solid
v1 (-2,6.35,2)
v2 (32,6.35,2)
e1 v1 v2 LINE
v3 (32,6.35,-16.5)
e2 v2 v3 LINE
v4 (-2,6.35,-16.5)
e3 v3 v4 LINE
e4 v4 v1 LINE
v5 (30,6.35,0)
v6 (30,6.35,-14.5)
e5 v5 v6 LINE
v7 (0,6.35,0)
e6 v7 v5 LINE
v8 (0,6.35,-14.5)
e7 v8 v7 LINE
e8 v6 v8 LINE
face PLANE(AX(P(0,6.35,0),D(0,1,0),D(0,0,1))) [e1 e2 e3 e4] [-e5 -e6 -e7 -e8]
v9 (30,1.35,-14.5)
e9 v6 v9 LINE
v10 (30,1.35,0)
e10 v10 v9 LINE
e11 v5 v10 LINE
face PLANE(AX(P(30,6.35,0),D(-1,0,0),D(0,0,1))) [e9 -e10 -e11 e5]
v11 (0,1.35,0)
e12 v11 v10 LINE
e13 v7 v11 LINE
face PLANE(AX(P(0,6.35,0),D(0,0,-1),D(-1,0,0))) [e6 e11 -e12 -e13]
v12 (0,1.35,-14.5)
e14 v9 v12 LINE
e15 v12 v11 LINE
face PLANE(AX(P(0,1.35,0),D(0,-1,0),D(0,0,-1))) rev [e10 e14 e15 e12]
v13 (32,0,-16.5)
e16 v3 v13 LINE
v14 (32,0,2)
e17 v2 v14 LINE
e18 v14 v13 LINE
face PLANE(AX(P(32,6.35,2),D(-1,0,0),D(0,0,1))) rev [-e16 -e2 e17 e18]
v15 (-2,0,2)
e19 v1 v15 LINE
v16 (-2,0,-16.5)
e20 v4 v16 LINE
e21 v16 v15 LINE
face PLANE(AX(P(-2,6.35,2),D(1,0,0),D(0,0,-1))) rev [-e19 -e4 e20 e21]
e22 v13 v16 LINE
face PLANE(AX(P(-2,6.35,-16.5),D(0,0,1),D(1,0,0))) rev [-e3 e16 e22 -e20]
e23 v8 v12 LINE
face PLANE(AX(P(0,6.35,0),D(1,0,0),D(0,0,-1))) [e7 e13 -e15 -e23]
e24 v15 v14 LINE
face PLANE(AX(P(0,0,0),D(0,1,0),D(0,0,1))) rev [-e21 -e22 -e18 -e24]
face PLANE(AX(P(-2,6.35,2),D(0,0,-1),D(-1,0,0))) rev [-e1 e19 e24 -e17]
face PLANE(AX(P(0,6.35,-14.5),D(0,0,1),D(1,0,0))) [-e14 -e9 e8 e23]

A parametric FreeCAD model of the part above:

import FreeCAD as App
import Part
import Sketcher

V = App.Vector


def add_polygon(sketch, points):
    """Adds a closed chain of lines whose ends are joined by coincident constraints."""
    first, n = sketch.GeometryCount, len(points)
    for a, b in zip(points, points[1:] + points[:1]):
        sketch.addGeometry(Part.LineSegment(App.Vector(*a, 0), App.Vector(*b, 0)), False)
    for i in range(n):
        sketch.addConstraint(Sketcher.Constraint("Coincident", first + i, 2, first + (i + 1) % n, 1))

doc = App.newDocument("Part")
body = doc.addObject("PartDesign::Body", "Body")

sketch1 = body.newObject("Sketcher::SketchObject", "Sketch")
sketch1.AttachmentSupport = (doc.getObject("XZ_Plane"), [""])
sketch1.MapMode = "FlatFace"
add_polygon(sketch1, [(-2, -16), (-2, 2), (32, 2), (32, -16)])
add_polygon(sketch1, [(30, 0), (0, 0), (0, -14), (30, -14)])
sketch1.addConstraint(Sketcher.Constraint("Vertical", 0))
sketch1.addConstraint(Sketcher.Constraint("Horizontal", 1))
sketch1.addConstraint(Sketcher.Constraint("Vertical", 2))
sketch1.addConstraint(Sketcher.Constraint("Horizontal", 3))
sketch1.addConstraint(Sketcher.Constraint("Horizontal", 4))
sketch1.addConstraint(Sketcher.Constraint("Vertical", 5))
sketch1.addConstraint(Sketcher.Constraint("Horizontal", 6))
sketch1.addConstraint(Sketcher.Constraint("Vertical", 7))
sketch1.addConstraint(Sketcher.Constraint("Coincident", 4, 2, -1, 1))
sketch1.addConstraint(Sketcher.Constraint("DistanceX", 1, 1, 1, 2, 34.0))
sketch1.addConstraint(Sketcher.Constraint("DistanceX", 4, 2, 4, 1, 30.0))
sketch1.addConstraint(Sketcher.Constraint("DistanceY", 0, 1, 0, 2, 18.5))
sketch1.addConstraint(Sketcher.Constraint("DistanceY", 5, 2, 5, 1, 14.5))
sketch1.addConstraint(Sketcher.Constraint("DistanceX", 0, 2, -1, 1, 2.0))
sketch1.addConstraint(Sketcher.Constraint("DistanceY", -1, 1, 0, 2, 2.0))
pad1 = body.newObject("PartDesign::Pad", "Pad")
pad1.Profile = sketch1
pad1.Length = 6.35
pad1.Reversed = True

sketch2 = body.newObject("Sketcher::SketchObject", "Sketch001")
sketch2.AttachmentSupport = (doc.getObject("XZ_Plane"), [""])
sketch2.MapMode = "FlatFace"
add_polygon(sketch2, [(0, -14), (0, 0), (30, 0), (30, -14)])
sketch2.addConstraint(Sketcher.Constraint("Vertical", 0))
sketch2.addConstraint(Sketcher.Constraint("Horizontal", 1))
sketch2.addConstraint(Sketcher.Constraint("Vertical", 2))
sketch2.addConstraint(Sketcher.Constraint("Horizontal", 3))
sketch2.addConstraint(Sketcher.Constraint("Coincident", 0, 2, -1, 1))
sketch2.addConstraint(Sketcher.Constraint("DistanceX", 1, 1, 1, 2, 30.0))
sketch2.addConstraint(Sketcher.Constraint("DistanceY", 0, 1, 0, 2, 14.5))
pad2 = body.newObject("PartDesign::Pad", "Pad001")
pad2.Profile = sketch2
pad2.Length = 1.35
pad2.Reversed = True

doc.recompute()
